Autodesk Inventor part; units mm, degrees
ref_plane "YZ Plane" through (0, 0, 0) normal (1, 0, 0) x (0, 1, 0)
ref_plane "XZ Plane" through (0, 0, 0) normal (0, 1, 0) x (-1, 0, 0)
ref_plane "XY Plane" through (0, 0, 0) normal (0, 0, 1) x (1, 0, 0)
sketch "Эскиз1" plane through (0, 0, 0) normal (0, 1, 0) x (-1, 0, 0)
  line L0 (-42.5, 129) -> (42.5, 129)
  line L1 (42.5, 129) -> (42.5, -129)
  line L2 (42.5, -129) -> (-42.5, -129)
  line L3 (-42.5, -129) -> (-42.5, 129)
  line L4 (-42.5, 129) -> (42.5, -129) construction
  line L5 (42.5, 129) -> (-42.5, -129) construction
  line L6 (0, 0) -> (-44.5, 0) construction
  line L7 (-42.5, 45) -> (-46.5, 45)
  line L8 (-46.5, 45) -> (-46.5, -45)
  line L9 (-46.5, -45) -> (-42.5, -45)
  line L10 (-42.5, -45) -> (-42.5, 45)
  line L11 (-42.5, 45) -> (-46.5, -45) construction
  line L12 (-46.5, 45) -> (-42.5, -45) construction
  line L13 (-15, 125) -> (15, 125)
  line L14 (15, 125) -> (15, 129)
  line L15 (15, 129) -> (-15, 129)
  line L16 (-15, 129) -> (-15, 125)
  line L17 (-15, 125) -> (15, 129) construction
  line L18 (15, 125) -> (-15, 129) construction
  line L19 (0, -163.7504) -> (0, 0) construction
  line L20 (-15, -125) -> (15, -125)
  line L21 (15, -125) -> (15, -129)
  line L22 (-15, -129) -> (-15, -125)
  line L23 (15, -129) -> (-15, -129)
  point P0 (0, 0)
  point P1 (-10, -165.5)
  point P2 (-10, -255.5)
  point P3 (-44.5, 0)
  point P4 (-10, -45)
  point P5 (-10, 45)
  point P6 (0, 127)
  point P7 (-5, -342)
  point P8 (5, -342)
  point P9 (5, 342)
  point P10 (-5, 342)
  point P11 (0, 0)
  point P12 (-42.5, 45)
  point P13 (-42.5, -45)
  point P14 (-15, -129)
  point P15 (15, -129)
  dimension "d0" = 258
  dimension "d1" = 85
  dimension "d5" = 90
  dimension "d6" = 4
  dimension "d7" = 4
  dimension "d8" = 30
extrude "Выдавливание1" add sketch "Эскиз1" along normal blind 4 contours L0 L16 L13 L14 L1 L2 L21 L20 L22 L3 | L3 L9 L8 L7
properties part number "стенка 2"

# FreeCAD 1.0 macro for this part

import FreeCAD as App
import Part
import Sketcher
from FreeCAD import Vector


def add_polygon(sketch, points):
    """Adds a closed chain of lines whose ends are joined by coincident constraints."""
    first, n = sketch.GeometryCount, len(points)
    for a, b in zip(points, points[1:] + points[:1]):
        sketch.addGeometry(Part.LineSegment(App.Vector(*a, 0), App.Vector(*b, 0)), False)
    for i in range(n):
        sketch.addConstraint(Sketcher.Constraint("Coincident", first + i, 2, first + (i + 1) % n, 1))

doc = App.newDocument("Part")
body = doc.addObject("PartDesign::Body", "Body")

# Sketch on XZ plane
sketch1 = body.newObject("Sketcher::SketchObject", "Sketch")
sketch1.AttachmentSupport = (doc.getObject("XZ_Plane"), [""])
sketch1.MapMode = "FlatFace"
add_polygon(sketch1, [(15, 129), (42.5, 129), (42.5, 45), (46.5, 45), (46.5, -45), (42.5, -45), (42.5, -129), (15, -129), (15, -125), (-15, -125), (-15, -129), (-42.5, -129), (-42.5, 129), (-15, 129), (-15, 125), (15, 125)])  # lines 0-15
sketch1.addConstraint([
    Sketcher.Constraint("Horizontal", 0),
    Sketcher.Constraint("Vertical", 1),
    Sketcher.Constraint("Horizontal", 2),
    Sketcher.Constraint("Vertical", 3),
    Sketcher.Constraint("Horizontal", 4),
    Sketcher.Constraint("Vertical", 5),
    Sketcher.Constraint("Horizontal", 6),
    Sketcher.Constraint("Vertical", 7),
    Sketcher.Constraint("Horizontal", 8),
    Sketcher.Constraint("Vertical", 9),
    Sketcher.Constraint("Horizontal", 10),
    Sketcher.Constraint("Vertical", 11),
    Sketcher.Constraint("Horizontal", 12),
    Sketcher.Constraint("Vertical", 13),
    Sketcher.Constraint("Horizontal", 14),
    Sketcher.Constraint("Vertical", 15),
    Sketcher.Constraint("Symmetric", 0, 2, 10, 2, -1, 1),
    Sketcher.Constraint("Symmetric", 5, 2, 11, 2, -1, 1),
    Sketcher.Constraint("Symmetric", 7, 2, 13, 2, -1, 1),
    Sketcher.Constraint("Symmetric", 6, 2, 9, 2, -2),
    Sketcher.Constraint("Vertical", 7, 2, 14, 2),
    Sketcher.Constraint("Equal", 1, 5),
    Sketcher.Constraint("Equal", 4, 7),
    Sketcher.Constraint("DistanceX", 2, 1, 2, 2, 4.0),
    Sketcher.Constraint("DistanceX", 8, 2, 8, 1, 30.0),
    Sketcher.Constraint("DistanceY", 3, 2, 3, 1, 90.0),
    Sketcher.Constraint("DistanceY", 11, 1, 11, 2, 258.0),
    Sketcher.Constraint("DistanceX", 10, 2, 5, 2, 85.0),
])
pad1 = body.newObject("PartDesign::Pad", "Pad")
pad1.Profile = sketch1
pad1.Length = 4
pad1.Reversed = True

doc.recompute()
